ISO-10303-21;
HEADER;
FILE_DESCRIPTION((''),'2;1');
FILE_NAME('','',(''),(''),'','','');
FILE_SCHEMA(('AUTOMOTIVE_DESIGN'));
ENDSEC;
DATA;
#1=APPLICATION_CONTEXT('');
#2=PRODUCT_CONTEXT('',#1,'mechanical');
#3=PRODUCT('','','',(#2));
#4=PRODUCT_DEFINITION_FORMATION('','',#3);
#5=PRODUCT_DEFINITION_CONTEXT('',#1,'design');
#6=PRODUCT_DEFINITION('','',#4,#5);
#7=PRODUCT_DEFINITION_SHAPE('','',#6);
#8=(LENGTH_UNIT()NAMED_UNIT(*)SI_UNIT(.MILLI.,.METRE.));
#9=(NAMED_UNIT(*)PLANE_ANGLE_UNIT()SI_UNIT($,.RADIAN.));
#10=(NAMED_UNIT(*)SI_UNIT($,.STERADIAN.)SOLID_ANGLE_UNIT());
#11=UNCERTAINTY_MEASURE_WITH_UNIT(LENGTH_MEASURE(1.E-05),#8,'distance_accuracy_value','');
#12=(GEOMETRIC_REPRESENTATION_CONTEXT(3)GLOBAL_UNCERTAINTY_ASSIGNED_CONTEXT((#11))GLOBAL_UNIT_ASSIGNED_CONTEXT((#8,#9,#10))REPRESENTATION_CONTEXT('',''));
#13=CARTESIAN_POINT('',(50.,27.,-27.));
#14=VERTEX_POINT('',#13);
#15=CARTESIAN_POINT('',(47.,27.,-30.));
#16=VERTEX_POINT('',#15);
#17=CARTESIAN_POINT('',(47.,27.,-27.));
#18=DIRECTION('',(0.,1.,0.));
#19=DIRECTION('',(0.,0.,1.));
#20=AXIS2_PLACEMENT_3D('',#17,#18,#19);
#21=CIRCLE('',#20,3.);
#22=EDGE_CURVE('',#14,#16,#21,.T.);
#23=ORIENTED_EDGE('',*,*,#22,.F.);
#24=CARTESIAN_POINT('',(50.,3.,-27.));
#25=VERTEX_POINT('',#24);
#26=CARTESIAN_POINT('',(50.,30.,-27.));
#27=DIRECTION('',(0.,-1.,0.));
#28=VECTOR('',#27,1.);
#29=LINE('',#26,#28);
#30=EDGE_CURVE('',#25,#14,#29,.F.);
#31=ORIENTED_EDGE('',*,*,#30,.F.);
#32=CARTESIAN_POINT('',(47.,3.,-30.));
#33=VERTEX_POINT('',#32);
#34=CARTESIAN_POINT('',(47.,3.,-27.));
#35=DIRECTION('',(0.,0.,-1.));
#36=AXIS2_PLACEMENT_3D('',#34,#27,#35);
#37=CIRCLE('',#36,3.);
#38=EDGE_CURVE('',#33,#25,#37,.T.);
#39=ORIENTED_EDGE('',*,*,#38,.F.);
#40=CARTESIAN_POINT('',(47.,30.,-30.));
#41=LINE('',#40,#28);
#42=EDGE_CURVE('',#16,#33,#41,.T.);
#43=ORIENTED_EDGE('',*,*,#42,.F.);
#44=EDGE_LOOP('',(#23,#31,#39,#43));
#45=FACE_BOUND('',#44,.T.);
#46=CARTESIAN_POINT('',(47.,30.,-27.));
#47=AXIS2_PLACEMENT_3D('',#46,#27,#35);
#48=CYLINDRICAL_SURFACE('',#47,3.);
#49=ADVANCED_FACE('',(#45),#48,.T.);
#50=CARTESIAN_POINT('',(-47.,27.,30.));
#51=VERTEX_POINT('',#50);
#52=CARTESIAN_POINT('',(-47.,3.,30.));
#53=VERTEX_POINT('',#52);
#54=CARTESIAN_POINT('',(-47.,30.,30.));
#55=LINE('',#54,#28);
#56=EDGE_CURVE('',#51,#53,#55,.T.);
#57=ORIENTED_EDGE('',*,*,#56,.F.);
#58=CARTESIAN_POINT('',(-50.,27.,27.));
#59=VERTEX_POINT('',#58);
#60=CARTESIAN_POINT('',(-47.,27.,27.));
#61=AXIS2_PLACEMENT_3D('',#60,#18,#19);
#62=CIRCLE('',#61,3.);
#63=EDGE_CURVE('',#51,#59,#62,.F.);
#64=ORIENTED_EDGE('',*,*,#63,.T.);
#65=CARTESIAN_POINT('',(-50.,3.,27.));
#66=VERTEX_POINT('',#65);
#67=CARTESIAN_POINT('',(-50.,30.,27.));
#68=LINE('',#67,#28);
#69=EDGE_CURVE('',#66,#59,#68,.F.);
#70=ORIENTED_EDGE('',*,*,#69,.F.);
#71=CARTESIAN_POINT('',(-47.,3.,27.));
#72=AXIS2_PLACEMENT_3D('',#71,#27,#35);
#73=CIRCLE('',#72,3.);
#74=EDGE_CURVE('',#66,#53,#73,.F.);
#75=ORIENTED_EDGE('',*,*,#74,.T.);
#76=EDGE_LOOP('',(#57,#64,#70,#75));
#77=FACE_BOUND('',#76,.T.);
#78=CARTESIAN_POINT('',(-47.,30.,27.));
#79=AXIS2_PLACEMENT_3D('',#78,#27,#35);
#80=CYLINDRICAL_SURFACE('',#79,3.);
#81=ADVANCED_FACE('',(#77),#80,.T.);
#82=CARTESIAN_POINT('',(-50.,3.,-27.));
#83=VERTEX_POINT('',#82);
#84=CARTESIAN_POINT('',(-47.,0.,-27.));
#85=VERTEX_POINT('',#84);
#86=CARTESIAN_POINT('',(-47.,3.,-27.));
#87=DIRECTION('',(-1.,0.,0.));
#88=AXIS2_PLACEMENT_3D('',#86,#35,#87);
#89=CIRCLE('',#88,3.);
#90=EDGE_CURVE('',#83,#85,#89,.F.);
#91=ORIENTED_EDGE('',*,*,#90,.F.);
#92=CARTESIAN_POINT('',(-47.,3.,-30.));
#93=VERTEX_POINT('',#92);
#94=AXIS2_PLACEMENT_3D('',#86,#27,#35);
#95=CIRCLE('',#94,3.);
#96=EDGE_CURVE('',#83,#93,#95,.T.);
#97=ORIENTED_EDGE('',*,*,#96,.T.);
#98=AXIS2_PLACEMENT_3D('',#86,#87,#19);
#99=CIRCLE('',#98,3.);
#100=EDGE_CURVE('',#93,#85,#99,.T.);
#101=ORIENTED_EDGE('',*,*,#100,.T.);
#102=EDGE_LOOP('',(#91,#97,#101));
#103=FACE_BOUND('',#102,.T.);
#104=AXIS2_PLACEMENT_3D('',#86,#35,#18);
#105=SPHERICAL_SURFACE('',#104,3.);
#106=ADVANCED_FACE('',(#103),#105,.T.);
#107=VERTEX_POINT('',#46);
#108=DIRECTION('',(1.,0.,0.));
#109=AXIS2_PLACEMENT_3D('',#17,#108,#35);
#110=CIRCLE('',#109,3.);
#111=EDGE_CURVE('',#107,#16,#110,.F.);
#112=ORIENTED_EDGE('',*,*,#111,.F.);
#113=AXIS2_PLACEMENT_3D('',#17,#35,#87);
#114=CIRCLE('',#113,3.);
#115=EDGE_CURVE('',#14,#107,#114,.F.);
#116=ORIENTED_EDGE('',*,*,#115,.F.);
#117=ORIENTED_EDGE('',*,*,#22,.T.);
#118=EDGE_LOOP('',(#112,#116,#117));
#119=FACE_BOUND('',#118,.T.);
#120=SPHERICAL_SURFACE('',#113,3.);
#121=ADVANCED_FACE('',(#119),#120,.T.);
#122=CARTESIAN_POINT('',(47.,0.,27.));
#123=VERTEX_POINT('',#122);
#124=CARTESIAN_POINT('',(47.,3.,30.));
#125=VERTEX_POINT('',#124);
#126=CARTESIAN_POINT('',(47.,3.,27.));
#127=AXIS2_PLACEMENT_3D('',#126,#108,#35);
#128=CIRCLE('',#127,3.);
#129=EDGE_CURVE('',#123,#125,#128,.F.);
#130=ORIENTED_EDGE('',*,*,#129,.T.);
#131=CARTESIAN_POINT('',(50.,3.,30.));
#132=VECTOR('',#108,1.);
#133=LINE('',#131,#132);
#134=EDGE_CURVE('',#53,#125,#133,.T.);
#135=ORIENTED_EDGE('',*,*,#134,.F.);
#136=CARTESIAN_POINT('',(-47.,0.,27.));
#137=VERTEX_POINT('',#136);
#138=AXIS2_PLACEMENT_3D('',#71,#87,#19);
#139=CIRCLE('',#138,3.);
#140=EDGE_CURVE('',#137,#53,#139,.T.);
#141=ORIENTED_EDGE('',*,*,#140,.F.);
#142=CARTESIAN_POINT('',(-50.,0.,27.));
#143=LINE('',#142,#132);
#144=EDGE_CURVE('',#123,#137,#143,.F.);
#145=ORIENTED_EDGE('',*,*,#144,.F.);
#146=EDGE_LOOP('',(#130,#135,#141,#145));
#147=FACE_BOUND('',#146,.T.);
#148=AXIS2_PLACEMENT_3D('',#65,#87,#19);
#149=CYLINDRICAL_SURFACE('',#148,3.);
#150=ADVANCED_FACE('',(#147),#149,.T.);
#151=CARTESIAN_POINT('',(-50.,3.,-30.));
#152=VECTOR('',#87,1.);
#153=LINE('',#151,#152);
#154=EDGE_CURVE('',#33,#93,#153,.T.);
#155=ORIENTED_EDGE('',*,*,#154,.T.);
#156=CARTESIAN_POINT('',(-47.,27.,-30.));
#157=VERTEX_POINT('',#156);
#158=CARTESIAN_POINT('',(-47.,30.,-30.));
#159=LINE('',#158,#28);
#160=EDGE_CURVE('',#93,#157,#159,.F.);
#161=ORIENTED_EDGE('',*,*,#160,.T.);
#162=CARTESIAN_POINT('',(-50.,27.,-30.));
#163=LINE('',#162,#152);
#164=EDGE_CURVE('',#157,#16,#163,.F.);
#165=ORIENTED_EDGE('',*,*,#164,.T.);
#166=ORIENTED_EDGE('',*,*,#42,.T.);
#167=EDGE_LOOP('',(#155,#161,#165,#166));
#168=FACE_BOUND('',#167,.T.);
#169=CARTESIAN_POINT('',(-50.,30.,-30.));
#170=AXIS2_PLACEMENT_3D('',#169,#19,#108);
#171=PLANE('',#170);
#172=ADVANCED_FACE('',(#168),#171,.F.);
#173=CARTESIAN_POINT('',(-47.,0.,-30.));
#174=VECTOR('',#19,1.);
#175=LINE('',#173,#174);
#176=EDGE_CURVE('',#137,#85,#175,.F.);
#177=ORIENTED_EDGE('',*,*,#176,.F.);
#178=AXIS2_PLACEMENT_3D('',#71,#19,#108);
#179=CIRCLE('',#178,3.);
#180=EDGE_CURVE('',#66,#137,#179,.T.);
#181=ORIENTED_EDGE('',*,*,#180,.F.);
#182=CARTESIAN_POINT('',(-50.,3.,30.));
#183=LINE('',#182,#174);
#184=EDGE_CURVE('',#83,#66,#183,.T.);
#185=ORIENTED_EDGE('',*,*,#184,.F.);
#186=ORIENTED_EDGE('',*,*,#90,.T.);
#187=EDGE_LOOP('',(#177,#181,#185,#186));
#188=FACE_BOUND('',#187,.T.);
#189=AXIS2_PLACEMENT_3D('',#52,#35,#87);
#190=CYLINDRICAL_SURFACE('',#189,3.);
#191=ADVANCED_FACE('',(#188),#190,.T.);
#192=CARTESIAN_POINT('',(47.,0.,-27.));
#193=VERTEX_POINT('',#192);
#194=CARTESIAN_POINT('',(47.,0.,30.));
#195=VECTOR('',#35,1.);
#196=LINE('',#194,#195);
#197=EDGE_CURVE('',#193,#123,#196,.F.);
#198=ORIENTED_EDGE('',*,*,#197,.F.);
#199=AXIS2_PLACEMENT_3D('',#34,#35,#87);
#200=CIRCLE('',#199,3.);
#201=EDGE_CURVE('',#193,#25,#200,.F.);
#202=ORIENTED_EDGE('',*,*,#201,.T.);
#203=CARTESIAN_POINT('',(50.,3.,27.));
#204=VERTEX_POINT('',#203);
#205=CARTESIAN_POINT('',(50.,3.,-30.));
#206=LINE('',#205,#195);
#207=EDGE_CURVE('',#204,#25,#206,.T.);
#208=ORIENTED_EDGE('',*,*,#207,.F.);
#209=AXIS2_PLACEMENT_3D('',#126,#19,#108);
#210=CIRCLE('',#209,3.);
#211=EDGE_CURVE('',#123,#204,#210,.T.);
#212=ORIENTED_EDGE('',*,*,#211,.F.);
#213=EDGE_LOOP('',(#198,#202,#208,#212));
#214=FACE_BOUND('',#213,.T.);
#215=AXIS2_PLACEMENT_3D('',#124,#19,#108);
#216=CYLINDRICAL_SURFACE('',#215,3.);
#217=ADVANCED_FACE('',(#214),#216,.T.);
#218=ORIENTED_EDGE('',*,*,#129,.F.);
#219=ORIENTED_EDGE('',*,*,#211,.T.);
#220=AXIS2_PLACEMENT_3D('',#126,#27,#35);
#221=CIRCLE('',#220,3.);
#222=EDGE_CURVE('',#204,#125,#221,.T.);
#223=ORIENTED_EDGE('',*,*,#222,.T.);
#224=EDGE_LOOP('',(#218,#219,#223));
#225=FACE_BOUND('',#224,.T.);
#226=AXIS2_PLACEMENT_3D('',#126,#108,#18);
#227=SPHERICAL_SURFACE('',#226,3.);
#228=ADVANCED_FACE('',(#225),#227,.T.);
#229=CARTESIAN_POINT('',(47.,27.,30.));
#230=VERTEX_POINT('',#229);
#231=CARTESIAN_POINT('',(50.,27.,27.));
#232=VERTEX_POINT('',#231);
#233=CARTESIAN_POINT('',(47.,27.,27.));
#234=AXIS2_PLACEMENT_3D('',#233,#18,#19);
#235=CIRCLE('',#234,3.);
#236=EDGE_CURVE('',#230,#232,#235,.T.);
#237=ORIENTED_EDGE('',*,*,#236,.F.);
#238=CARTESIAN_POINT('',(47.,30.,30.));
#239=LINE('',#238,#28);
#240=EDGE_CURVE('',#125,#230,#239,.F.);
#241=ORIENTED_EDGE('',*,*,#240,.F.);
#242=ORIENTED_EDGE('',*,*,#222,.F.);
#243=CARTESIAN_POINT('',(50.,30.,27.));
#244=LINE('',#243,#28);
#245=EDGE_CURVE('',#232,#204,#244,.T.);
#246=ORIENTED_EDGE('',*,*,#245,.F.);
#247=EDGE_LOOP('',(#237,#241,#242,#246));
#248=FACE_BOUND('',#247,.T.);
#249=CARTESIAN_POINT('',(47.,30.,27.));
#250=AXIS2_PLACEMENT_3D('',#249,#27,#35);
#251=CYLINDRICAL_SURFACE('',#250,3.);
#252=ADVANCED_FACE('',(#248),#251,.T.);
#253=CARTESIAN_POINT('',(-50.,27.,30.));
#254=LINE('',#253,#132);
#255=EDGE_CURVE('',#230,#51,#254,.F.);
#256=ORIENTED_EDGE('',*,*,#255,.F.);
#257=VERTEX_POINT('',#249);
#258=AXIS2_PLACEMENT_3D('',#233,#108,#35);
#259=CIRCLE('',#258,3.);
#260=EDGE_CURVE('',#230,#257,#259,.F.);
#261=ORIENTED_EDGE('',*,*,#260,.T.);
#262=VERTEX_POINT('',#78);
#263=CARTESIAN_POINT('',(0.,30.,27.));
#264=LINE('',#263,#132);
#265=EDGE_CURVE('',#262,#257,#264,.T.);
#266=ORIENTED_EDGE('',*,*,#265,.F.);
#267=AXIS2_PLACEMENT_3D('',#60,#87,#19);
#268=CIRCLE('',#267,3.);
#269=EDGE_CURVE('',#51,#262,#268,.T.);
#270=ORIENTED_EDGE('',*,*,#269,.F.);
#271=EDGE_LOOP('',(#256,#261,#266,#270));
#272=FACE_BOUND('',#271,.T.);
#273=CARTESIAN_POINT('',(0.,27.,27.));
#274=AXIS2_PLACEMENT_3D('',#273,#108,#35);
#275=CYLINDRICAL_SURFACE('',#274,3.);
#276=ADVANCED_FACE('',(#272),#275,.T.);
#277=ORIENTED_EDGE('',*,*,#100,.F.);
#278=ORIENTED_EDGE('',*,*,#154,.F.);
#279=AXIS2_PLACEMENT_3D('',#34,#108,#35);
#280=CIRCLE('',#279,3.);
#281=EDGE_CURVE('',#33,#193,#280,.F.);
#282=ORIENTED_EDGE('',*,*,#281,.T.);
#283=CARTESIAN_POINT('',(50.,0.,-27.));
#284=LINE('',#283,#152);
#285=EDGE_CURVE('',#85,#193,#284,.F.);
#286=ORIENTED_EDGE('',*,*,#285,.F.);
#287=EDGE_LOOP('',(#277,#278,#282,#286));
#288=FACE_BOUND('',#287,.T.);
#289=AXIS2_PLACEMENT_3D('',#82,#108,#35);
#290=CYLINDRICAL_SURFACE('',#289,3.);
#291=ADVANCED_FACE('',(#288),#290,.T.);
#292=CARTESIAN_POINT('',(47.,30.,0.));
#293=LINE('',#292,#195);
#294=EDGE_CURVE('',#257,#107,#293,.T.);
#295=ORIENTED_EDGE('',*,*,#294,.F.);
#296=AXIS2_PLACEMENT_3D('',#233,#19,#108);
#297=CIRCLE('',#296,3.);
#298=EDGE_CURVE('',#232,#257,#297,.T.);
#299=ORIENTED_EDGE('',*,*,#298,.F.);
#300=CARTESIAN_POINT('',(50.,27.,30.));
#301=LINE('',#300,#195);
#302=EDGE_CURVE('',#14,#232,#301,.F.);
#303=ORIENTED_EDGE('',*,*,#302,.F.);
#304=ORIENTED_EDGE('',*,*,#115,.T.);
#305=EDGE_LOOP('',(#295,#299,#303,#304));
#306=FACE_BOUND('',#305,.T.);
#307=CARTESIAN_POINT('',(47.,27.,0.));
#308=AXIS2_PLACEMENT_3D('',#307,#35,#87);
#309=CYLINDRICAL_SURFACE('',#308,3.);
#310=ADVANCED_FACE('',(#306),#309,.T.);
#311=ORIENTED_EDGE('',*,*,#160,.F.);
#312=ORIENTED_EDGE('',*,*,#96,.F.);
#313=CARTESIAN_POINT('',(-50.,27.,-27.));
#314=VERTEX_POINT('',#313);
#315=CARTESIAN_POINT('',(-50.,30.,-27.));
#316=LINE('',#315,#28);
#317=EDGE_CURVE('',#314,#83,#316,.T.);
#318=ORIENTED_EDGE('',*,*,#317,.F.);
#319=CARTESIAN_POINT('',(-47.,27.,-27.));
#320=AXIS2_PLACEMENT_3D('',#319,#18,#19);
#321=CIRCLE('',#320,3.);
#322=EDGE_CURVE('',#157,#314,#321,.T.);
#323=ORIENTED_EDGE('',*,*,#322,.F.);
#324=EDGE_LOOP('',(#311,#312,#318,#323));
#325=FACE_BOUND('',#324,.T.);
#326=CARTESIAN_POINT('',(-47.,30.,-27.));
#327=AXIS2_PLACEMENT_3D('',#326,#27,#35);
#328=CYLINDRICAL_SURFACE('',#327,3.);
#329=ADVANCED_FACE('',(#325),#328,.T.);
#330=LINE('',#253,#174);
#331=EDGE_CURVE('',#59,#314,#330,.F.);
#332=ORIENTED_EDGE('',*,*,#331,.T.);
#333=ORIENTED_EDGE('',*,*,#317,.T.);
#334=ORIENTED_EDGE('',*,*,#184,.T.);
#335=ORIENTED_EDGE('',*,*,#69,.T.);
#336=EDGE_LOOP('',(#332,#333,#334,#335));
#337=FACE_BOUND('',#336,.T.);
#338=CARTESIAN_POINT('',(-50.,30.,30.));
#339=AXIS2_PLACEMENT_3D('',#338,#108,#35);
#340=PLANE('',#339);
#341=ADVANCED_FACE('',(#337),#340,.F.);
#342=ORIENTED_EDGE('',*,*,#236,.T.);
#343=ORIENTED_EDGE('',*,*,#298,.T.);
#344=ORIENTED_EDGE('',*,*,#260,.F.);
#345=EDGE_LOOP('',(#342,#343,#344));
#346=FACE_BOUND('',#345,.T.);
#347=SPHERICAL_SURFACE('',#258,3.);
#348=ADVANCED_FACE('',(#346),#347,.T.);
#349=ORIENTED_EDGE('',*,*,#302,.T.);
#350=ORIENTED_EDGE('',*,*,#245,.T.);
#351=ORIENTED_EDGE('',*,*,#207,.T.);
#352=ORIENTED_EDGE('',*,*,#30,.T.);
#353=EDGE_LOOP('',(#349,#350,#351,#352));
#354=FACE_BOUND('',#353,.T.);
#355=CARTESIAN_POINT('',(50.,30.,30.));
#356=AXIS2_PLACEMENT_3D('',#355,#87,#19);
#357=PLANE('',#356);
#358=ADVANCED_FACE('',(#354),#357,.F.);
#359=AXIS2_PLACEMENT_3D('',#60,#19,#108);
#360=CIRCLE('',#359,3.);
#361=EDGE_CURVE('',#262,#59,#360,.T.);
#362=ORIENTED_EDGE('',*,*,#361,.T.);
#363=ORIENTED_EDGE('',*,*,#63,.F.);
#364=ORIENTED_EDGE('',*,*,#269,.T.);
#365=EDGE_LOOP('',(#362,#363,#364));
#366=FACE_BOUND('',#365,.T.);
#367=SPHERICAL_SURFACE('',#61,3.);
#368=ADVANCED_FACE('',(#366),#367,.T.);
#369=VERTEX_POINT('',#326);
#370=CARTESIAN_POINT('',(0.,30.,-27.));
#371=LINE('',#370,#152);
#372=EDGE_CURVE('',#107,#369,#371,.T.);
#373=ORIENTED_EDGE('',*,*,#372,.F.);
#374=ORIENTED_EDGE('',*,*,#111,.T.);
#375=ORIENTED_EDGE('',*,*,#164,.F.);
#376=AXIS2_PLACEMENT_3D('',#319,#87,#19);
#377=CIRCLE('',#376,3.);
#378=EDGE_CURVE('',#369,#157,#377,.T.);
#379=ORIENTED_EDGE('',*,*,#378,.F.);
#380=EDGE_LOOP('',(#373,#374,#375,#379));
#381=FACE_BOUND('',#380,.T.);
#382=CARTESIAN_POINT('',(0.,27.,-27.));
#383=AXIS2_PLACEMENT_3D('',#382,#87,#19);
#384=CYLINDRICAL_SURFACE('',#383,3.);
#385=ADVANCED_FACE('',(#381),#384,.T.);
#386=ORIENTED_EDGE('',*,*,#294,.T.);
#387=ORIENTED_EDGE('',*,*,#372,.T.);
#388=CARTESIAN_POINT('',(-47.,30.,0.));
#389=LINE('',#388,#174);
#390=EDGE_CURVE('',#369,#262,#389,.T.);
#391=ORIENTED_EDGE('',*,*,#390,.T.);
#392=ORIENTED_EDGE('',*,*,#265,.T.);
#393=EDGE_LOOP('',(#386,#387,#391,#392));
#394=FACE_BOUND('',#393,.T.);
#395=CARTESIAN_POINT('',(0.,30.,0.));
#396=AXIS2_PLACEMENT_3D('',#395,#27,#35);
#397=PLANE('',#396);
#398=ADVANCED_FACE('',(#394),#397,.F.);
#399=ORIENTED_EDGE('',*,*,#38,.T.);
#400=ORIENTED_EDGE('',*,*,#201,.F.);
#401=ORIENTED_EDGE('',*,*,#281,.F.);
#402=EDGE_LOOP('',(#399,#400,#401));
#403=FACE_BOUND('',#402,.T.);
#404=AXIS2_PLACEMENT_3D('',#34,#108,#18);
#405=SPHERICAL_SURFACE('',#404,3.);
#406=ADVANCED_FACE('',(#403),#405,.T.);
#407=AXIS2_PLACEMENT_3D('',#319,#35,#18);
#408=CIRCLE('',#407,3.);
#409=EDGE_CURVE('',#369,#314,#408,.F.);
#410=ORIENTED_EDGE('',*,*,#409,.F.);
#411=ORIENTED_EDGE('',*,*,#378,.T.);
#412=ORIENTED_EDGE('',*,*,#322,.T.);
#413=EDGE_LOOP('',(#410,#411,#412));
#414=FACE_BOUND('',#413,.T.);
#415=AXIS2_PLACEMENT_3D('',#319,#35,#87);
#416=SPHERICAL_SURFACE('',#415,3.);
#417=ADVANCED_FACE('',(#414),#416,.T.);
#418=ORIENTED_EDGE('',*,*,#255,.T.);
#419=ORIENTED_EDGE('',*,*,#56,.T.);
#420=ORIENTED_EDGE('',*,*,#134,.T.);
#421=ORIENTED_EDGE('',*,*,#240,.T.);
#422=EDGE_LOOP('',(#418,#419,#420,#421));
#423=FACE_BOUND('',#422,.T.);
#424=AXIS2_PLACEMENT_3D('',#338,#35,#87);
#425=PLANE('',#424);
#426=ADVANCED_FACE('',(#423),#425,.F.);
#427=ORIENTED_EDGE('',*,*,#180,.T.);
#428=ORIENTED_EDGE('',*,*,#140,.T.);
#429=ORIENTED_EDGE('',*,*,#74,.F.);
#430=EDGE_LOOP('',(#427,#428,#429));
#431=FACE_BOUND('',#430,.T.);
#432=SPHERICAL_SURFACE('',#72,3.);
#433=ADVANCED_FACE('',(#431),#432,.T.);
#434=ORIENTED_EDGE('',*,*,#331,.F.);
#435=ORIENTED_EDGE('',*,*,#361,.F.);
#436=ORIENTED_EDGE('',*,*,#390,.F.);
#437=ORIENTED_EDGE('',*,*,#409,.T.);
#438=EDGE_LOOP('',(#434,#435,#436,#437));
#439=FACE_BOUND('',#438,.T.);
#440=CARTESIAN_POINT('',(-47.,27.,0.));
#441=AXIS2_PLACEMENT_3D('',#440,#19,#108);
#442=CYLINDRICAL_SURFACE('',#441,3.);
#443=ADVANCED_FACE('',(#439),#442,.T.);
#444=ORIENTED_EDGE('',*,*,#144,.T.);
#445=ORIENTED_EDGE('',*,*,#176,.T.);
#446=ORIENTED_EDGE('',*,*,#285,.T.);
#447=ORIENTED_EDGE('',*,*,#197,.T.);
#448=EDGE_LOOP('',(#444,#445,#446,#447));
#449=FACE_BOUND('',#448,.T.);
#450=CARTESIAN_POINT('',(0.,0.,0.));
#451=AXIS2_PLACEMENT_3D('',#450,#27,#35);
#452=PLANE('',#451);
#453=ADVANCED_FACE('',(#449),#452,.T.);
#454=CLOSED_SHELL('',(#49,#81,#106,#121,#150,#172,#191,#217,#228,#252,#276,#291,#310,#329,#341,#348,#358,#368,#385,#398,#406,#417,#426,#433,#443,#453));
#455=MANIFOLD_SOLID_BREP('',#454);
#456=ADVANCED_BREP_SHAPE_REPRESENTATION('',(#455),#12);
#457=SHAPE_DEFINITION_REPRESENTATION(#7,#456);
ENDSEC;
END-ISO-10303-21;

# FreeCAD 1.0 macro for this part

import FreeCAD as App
import Part
import Sketcher
Q = App.Units.Quantity

doc = App.newDocument("Part")
body = doc.addObject("PartDesign::Body", "Body")

sketch1 = doc.addObject("Sketcher::SketchObject", "Sketch")
body.addObject(sketch1)
sketch1.AttachmentSupport = (doc.XZ_Plane, [""])
sketch1.MapMode = "FlatFace"
sketch1.addGeometry([
    Part.LineSegment(App.Vector(-50, -30, 0), App.Vector(-50, 30, 0)),
    Part.LineSegment(App.Vector(-50, 30, 0), App.Vector(50, 30, 0)),
    Part.LineSegment(App.Vector(50, 30, 0), App.Vector(50, -30, 0)),
    Part.LineSegment(App.Vector(50, -30, 0), App.Vector(-50, -30, 0)),
], False)
sketch1.addConstraint([
    Sketcher.Constraint("Coincident", 0, 2, 1, 1),
    Sketcher.Constraint("Coincident", 1, 2, 2, 1),
    Sketcher.Constraint("Coincident", 2, 2, 3, 1),
    Sketcher.Constraint("Coincident", 3, 2, 0, 1),
    Sketcher.Constraint("Vertical", 0),
    Sketcher.Constraint("Horizontal", 1),
    Sketcher.Constraint("Vertical", 2),
    Sketcher.Constraint("Horizontal", 3),
    Sketcher.Constraint("Symmetric", 0, 2, 2, 2, -1, 1),
    Sketcher.Constraint("DistanceX", 1, 1, 1, 2, Q("100 mm")),
    Sketcher.Constraint("DistanceY", 0, 1, 0, 2, Q("60 mm")),
])
pad1 = doc.addObject("PartDesign::Pad", "Pad")
body.addObject(pad1)
pad1.Profile = sketch1
pad1.Length = 30
pad1.Reversed = True
doc.recompute()

fillet = doc.addObject("PartDesign::Fillet", "Fillet")
body.addObject(fillet)
fillet.Base = (pad1, ["Edge1"])
fillet.UseAllEdges = True
fillet.Radius = 3

doc.recompute()
